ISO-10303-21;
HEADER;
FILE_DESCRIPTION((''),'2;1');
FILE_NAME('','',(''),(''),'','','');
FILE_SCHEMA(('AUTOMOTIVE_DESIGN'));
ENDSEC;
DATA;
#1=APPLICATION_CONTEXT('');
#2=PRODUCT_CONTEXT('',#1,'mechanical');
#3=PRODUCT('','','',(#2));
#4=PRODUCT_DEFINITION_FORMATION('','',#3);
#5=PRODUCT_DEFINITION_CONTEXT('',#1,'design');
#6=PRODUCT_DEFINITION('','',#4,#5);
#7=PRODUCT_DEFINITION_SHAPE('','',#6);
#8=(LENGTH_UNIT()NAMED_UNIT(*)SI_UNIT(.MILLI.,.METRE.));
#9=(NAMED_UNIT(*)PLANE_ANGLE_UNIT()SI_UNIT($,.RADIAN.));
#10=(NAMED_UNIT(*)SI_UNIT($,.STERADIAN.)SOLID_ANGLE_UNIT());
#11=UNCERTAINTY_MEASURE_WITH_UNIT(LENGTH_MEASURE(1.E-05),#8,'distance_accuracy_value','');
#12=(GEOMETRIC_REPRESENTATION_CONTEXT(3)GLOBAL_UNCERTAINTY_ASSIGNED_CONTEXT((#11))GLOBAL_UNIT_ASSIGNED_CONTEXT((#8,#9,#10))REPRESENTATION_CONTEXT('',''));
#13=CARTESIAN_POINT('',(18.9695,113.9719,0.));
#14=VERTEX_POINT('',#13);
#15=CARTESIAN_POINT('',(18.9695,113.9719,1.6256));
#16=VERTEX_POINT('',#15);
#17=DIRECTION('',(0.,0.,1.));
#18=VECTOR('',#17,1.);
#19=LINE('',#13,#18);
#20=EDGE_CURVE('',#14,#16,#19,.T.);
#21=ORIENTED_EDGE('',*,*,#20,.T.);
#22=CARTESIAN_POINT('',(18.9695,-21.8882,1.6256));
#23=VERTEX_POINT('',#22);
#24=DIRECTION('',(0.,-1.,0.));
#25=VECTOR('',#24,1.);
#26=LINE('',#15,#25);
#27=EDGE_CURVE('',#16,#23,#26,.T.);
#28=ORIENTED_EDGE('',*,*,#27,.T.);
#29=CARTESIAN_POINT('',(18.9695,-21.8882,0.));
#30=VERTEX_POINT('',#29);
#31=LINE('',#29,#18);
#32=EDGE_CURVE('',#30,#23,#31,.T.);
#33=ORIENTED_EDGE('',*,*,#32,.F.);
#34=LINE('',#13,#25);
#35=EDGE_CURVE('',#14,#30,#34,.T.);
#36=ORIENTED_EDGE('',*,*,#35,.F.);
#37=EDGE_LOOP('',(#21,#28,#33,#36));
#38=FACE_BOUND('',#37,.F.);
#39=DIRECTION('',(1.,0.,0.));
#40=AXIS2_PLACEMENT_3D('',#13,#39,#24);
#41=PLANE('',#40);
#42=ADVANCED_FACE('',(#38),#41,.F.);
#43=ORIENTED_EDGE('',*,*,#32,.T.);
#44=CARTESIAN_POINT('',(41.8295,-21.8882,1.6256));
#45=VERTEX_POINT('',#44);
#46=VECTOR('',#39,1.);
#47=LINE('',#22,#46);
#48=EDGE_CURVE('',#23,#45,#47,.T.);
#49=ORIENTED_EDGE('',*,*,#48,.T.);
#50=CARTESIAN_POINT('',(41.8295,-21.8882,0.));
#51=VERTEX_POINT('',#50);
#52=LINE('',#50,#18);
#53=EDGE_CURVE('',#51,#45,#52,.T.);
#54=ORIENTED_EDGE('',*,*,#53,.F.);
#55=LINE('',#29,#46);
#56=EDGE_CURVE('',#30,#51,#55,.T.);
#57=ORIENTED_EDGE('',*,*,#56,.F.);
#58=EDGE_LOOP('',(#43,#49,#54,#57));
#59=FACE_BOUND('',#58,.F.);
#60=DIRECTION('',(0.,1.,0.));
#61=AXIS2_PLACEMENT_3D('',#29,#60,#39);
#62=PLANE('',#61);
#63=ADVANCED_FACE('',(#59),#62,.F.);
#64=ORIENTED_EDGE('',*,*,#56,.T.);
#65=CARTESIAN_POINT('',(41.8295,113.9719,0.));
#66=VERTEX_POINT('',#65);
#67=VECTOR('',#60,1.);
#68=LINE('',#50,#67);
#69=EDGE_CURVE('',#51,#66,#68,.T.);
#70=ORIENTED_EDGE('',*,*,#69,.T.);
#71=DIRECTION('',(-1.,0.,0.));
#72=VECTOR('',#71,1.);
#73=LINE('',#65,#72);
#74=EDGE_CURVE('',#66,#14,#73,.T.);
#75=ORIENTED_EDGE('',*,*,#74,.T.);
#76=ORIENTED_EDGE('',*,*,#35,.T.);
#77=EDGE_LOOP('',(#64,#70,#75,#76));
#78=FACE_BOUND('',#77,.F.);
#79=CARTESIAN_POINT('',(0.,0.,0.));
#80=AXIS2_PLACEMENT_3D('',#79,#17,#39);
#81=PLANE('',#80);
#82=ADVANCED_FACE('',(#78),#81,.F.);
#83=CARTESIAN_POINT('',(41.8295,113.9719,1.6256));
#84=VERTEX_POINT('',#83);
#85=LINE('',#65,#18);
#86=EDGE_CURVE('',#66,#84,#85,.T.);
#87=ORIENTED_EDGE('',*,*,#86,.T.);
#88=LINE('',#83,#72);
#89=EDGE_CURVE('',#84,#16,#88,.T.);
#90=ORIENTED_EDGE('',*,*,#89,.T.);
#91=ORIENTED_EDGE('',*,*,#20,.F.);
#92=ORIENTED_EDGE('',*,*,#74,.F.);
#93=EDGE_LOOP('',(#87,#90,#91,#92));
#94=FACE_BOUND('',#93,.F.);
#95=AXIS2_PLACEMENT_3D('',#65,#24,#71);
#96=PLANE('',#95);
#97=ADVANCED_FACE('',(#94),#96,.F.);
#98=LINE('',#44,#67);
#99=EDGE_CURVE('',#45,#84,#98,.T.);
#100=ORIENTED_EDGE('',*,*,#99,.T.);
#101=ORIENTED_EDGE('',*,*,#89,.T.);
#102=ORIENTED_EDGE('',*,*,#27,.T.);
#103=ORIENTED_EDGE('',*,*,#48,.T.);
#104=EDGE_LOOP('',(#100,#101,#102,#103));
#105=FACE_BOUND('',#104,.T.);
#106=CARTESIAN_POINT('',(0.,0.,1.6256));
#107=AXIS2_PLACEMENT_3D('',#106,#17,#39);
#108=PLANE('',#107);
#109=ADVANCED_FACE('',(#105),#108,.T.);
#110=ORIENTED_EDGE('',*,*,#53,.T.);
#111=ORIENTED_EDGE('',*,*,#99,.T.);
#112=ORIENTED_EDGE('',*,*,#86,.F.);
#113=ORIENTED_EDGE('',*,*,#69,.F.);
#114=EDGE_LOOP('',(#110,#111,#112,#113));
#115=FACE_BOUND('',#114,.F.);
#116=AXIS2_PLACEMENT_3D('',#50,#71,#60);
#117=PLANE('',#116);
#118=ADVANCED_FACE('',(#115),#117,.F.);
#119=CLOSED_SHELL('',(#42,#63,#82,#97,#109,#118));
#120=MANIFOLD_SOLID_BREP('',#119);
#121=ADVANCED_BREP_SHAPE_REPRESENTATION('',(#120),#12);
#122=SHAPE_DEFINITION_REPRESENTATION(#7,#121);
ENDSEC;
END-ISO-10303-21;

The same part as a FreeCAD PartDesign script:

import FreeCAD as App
import Part
import Sketcher
from FreeCAD import Vector
Q = App.Units.Quantity


def add_polygon(sketch, points):
    """Adds a closed chain of lines whose ends are joined by coincident constraints."""
    first, n = sketch.GeometryCount, len(points)
    for a, b in zip(points, points[1:] + points[:1]):
        sketch.addGeometry(Part.LineSegment(App.Vector(*a, 0), App.Vector(*b, 0)), False)
    for i in range(n):
        sketch.addConstraint(Sketcher.Constraint("Coincident", first + i, 2, first + (i + 1) % n, 1))

doc = App.newDocument("Part")
body = doc.addObject("PartDesign::Body", "Body")

# Sketch on XY plane
sketch1 = doc.addObject("Sketcher::SketchObject", "Sketch")
body.addObject(sketch1)
sketch1.AttachmentSupport = (doc.XY_Plane, [""])
sketch1.MapMode = "FlatFace"
add_polygon(sketch1, [(42, -22), (42, 114), (19, 114), (19, -22)])  # lines 0-3
sketch1.addConstraint([
    Sketcher.Constraint("Vertical", 0),
    Sketcher.Constraint("Horizontal", 1),
    Sketcher.Constraint("Vertical", 2),
    Sketcher.Constraint("Horizontal", 3),
    Sketcher.Constraint("DistanceX", 1, 2, 1, 1, Q("0.9 in")),
    Sketcher.Constraint("DistanceY", 0, 1, 0, 2, Q("135.86 mm")),
    Sketcher.Constraint("DistanceX", -1, 1, 0, 2, Q("41.8295 mm")),
    Sketcher.Constraint("DistanceY", -1, 1, 0, 2, Q("113.972 mm")),
])
pad1 = doc.addObject("PartDesign::Pad", "Pad")
body.addObject(pad1)
pad1.Profile = sketch1
pad1.Length = Q("0.064 in")

doc.recompute()
